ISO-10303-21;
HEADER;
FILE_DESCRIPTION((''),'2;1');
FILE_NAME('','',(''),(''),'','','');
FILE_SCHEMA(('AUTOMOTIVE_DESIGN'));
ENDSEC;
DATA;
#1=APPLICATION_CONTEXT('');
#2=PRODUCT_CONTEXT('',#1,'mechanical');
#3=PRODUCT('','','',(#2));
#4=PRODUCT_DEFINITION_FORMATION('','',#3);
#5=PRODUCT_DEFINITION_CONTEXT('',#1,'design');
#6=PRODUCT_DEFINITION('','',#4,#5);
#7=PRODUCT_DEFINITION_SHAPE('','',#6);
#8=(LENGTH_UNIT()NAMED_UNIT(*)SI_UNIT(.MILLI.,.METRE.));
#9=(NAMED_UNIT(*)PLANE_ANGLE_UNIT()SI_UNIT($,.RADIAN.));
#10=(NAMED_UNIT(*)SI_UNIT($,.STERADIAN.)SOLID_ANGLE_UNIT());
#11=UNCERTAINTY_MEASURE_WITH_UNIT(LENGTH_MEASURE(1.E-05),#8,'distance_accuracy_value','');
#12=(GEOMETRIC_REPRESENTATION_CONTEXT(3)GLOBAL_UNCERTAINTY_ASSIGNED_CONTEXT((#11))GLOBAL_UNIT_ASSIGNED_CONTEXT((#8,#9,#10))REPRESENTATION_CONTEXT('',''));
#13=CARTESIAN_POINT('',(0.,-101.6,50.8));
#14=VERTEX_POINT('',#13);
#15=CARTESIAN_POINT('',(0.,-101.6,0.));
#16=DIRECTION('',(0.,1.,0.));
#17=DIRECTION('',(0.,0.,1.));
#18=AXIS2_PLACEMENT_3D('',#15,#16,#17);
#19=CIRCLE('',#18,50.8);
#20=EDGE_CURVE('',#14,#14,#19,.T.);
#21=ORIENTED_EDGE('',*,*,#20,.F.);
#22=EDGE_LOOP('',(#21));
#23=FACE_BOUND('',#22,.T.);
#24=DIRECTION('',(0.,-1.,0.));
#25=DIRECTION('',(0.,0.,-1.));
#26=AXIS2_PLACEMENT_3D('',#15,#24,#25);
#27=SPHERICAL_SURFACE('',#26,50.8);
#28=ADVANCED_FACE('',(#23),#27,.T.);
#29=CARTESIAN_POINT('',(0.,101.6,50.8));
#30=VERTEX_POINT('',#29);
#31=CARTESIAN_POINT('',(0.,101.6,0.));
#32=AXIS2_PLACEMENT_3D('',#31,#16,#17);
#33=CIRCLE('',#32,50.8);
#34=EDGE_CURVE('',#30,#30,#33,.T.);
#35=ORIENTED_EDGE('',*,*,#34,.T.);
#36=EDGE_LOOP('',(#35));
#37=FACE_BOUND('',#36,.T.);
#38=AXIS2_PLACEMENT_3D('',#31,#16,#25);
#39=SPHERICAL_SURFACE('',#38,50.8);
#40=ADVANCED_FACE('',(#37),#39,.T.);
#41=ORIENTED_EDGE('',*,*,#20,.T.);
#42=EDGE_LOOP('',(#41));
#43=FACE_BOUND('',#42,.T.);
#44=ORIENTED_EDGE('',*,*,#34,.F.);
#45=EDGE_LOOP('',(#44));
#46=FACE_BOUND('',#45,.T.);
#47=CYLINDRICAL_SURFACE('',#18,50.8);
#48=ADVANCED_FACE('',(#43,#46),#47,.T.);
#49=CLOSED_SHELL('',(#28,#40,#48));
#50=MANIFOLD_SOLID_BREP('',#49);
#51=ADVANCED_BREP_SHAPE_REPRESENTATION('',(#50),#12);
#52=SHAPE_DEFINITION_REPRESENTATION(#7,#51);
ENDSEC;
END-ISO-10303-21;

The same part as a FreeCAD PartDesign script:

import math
import FreeCAD as App
import Part
import Sketcher
Q = App.Units.Quantity

doc = App.newDocument("Part")
body = doc.addObject("PartDesign::Body", "Body")

sketch1 = body.newObject("Sketcher::SketchObject", "Sketch")
sketch1.AttachmentSupport = (doc.getObject("XZ_Plane"), [""])
sketch1.MapMode = "FlatFace"
sketch1.addGeometry(Part.Circle(App.Vector(0, 0, 0), App.Vector(0, 0, 1), 50.8), False)
sketch1.addConstraint([
    Sketcher.Constraint("Coincident", 0, 3, -1, 1),
    Sketcher.Constraint("Diameter", 0, Q("4 in")),
])
pad1 = body.newObject("PartDesign::Pad", "Pad")
pad1.Profile = sketch1
pad1.Length = Q("8 in")
pad1.Midplane = True

sketch2 = body.newObject("Sketcher::SketchObject", "Sketch001")
sketch2.AttachmentSupport = (doc.getObject("YZ_Plane"), [""])
sketch2.MapMode = "FlatFace"
sketch2.addGeometry([
    Part.LineSegment(App.Vector(101.6, 50.8, 0), App.Vector(101.6, 0, 0)),
    Part.LineSegment(App.Vector(101.6, 0, 0), App.Vector(152.4, 0, 0)),
    Part.ArcOfCircle(Part.Circle(App.Vector(101.6, 0, 0), App.Vector(0, 0, 1), 50.8), math.radians(0), math.radians(90)),
], False)
sketch2.addConstraint([
    Sketcher.Constraint("Coincident", 0, 2, 1, 1),
    Sketcher.Constraint("Coincident", 1, 2, 2, 1),
    Sketcher.Constraint("Coincident", 2, 2, 0, 1),
    Sketcher.Constraint("Vertical", 0),
    Sketcher.Constraint("Horizontal", 1),
    Sketcher.Constraint("Coincident", 0, 2, 2, 3),
    Sketcher.Constraint("PointOnObject", 2, 3, -1),
    Sketcher.Constraint("Radius", 2, Q("2 in")),
    Sketcher.Constraint("DistanceX", -1, 1, 2, 3, Q("4 in")),
])
revolution = body.newObject("PartDesign::Revolution", "Revolution")
revolution.Profile = sketch2
revolution.ReferenceAxis = (sketch2, ["H_Axis"])
revolution.Angle = 360
doc.recompute()

mirrored = body.newObject("PartDesign::Mirrored", "Mirrored")
mirrored.Originals = [revolution]
mirrored.MirrorPlane = (doc.getObject("XZ_Plane"), [""])
body.Tip = mirrored

doc.recompute()
